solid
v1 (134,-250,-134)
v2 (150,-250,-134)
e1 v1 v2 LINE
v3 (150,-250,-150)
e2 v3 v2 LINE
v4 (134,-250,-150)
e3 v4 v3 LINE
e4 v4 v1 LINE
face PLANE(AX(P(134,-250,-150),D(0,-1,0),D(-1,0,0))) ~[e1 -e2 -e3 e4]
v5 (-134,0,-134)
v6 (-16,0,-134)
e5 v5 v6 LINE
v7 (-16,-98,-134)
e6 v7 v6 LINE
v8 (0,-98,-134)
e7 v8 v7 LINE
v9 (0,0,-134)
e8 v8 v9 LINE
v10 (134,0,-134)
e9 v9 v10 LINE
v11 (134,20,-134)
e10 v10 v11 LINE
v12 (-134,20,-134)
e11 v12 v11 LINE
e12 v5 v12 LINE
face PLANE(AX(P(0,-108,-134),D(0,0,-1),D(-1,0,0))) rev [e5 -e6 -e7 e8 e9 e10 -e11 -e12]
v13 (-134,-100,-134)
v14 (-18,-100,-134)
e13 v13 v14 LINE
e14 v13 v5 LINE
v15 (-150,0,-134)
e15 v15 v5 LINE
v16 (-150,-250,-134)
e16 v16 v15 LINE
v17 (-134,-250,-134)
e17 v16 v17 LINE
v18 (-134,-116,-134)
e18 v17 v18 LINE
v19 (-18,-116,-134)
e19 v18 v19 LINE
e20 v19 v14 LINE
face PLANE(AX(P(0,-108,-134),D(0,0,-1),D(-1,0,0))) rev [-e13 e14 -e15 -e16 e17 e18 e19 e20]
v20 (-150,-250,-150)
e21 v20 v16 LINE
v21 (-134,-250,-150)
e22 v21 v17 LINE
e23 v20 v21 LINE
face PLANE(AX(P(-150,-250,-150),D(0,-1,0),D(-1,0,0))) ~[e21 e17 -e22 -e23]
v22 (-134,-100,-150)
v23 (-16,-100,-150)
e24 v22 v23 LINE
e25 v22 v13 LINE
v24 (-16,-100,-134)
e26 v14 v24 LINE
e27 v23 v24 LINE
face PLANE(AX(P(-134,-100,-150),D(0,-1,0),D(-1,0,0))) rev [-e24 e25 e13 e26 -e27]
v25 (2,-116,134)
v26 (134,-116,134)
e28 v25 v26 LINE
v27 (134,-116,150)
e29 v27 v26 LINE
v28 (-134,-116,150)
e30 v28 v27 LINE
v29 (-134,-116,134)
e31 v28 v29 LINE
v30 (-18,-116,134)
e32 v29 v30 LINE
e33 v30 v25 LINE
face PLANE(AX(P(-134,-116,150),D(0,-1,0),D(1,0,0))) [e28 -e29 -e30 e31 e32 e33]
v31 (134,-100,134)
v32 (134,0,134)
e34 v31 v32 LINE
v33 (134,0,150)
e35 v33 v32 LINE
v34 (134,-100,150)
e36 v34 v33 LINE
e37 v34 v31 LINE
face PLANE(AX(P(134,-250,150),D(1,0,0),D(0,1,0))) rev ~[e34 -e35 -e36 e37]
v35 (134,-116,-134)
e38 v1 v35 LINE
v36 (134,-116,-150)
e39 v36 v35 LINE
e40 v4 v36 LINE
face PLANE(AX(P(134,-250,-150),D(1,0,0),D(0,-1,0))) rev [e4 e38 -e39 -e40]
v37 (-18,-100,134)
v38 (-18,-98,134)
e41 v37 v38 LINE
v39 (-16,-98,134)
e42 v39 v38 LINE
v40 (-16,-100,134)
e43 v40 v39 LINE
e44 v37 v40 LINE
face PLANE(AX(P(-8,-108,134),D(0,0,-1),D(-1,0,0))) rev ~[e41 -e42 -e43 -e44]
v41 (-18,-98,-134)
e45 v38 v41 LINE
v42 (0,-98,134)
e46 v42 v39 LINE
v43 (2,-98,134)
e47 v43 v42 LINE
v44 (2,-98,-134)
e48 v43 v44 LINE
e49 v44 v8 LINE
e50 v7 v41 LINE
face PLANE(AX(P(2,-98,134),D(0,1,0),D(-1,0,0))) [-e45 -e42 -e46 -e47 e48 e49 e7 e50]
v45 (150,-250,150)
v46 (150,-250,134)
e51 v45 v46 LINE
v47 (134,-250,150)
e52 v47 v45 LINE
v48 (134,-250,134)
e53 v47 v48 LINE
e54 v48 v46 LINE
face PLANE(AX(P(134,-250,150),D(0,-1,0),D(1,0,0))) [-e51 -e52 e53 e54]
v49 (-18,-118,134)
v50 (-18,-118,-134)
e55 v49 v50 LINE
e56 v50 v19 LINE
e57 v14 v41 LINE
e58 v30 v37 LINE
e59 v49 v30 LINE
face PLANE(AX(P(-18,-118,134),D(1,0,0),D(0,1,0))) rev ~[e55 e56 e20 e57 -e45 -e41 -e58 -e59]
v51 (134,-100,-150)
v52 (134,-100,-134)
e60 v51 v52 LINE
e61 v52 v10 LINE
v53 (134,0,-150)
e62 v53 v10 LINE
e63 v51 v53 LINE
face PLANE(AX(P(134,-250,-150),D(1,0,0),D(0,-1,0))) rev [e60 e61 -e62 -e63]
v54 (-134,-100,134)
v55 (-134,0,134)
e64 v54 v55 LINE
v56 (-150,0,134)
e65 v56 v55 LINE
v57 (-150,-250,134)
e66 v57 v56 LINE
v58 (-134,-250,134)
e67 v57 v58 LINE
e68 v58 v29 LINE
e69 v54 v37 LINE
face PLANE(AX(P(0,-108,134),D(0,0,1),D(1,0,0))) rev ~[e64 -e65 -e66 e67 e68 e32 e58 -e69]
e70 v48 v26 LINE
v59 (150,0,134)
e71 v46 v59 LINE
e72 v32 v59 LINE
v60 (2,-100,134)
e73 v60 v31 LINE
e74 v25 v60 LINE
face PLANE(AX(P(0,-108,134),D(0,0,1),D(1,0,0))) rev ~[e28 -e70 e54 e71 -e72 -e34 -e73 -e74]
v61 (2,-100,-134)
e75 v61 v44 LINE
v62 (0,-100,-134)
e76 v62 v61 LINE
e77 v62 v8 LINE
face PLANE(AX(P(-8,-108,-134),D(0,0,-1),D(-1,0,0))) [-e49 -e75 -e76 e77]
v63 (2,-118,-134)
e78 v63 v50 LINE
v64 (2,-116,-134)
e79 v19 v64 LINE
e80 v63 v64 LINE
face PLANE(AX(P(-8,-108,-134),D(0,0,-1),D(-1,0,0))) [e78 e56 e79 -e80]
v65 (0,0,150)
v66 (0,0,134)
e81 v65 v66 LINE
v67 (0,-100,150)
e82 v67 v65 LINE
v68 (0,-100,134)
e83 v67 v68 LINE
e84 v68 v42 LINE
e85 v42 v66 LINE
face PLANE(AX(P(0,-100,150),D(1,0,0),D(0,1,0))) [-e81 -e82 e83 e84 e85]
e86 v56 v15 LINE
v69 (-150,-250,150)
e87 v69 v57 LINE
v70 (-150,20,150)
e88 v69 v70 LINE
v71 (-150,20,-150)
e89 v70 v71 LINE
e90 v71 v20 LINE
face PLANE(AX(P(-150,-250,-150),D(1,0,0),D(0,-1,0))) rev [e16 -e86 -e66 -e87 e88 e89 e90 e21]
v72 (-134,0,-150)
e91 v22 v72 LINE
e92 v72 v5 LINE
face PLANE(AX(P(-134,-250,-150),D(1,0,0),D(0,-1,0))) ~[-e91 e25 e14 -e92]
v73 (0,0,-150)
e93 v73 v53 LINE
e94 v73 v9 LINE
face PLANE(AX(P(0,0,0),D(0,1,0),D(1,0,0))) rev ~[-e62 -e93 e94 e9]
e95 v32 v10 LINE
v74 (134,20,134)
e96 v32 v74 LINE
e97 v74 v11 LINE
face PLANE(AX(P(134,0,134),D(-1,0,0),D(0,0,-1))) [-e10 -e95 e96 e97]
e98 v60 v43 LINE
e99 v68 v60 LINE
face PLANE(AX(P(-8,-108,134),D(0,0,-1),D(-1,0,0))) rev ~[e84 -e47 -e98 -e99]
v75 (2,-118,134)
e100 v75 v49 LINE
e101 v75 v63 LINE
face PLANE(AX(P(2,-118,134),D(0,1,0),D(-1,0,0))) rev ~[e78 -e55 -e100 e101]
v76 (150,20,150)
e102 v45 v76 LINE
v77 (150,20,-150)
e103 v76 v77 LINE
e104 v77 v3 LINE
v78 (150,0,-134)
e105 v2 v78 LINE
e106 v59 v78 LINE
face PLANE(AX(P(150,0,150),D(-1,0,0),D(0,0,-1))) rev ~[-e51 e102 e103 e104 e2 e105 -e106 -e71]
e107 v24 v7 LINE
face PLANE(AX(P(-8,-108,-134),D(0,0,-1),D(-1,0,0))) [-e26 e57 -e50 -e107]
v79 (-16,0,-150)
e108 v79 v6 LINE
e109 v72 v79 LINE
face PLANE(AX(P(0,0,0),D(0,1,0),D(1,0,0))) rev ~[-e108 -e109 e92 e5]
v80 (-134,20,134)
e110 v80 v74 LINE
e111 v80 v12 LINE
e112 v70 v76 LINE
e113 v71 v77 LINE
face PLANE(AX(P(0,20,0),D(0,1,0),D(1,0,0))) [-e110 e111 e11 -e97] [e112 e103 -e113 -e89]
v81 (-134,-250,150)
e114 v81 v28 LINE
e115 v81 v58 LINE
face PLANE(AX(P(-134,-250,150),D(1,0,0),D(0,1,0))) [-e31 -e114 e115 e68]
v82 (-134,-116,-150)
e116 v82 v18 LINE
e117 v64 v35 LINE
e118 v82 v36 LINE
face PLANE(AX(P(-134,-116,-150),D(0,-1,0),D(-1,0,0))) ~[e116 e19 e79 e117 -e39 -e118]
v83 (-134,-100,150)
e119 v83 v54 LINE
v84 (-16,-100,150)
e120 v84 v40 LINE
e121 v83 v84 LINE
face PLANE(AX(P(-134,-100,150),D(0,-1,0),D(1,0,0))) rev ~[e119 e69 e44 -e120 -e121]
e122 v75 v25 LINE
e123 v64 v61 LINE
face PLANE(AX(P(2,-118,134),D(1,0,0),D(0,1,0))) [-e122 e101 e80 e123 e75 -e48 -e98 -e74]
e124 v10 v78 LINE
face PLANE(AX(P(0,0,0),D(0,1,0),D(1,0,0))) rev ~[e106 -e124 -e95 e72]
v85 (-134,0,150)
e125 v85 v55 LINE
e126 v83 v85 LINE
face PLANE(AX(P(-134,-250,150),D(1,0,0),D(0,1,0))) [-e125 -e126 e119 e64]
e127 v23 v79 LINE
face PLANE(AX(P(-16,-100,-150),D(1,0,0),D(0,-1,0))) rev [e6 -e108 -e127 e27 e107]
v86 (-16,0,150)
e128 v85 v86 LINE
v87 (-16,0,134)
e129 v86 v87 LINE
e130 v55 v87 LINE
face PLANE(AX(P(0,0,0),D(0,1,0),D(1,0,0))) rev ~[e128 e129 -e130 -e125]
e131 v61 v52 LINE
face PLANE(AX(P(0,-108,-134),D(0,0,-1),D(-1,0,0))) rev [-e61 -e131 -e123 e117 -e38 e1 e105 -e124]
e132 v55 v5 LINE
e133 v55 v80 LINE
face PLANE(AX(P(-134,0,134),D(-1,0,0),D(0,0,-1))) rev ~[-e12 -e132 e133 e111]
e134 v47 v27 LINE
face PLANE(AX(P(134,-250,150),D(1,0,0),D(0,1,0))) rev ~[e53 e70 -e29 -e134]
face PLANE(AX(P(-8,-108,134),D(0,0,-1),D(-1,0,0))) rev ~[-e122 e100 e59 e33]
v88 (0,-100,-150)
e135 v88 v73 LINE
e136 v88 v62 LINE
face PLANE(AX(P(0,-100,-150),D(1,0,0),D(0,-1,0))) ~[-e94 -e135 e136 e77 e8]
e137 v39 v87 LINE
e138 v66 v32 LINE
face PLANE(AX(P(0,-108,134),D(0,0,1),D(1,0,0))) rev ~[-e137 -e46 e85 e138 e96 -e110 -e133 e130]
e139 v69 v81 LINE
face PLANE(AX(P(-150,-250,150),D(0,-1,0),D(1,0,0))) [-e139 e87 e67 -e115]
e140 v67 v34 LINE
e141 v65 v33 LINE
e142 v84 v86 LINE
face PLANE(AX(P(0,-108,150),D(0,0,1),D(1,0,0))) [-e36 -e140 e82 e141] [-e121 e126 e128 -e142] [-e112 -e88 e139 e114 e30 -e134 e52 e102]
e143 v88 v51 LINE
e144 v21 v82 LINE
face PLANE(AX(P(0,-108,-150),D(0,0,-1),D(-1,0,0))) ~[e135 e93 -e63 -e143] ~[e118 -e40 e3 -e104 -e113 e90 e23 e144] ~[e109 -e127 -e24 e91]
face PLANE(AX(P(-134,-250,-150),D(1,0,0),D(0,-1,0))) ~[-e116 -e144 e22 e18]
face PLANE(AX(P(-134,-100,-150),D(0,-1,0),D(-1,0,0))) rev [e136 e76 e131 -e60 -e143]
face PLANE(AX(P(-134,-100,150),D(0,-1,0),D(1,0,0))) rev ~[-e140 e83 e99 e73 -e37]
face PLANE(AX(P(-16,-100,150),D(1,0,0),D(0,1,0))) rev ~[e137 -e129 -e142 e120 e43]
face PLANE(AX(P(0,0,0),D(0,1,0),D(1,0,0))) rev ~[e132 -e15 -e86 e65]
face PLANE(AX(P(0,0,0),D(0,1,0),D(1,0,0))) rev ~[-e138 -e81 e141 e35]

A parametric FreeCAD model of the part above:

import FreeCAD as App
import Part
import Sketcher
Q = App.Units.Quantity


def add_polygon(sketch, points):
    """Adds a closed chain of lines whose ends are joined by coincident constraints."""
    first, n = sketch.GeometryCount, len(points)
    for a, b in zip(points, points[1:] + points[:1]):
        sketch.addGeometry(Part.LineSegment(App.Vector(*a, 0), App.Vector(*b, 0)), False)
    for i in range(n):
        sketch.addConstraint(Sketcher.Constraint("Coincident", first + i, 2, first + (i + 1) % n, 1))

doc = App.newDocument("Part")
body = doc.addObject("PartDesign::Body", "Body")

sketch1 = doc.addObject("Sketcher::SketchObject", "Sketch")
body.addObject(sketch1)
sketch1.AttachmentSupport = (doc.XZ_Plane, [""])
sketch1.MapMode = "FlatFace"
add_polygon(sketch1, [(-150, -150), (-150, 150), (150, 150), (150, -150)])
add_polygon(sketch1, [(134, 134), (-134, 134), (-134, -134), (134, -134)])
sketch1.addConstraint([
    Sketcher.Constraint("Vertical", 0),
    Sketcher.Constraint("Horizontal", 1),
    Sketcher.Constraint("Vertical", 2),
    Sketcher.Constraint("Horizontal", 3),
    Sketcher.Constraint("Horizontal", 4),
    Sketcher.Constraint("Vertical", 5),
    Sketcher.Constraint("Horizontal", 6),
    Sketcher.Constraint("Vertical", 7),
    Sketcher.Constraint("Symmetric", 0, 2, 2, 2, -1, 1),
    Sketcher.Constraint("Symmetric", 4, 2, 6, 2, -1, 1),
    Sketcher.Constraint("Equal", 3, 0),
    Sketcher.Constraint("Equal", 6, 5),
    Sketcher.Constraint("DistanceX", 1, 1, 1, 2, Q("300 mm")),
    Sketcher.Constraint("DistanceX", 4, 2, 4, 1, Q("268 mm")),
])
pad1 = doc.addObject("PartDesign::Pad", "Pad")
body.addObject(pad1)
pad1.Profile = sketch1
pad1.Length = 20
pad1.Reversed = True

sketch2 = doc.addObject("Sketcher::SketchObject", "Sketch001")
body.addObject(sketch2)
sketch2.AttachmentSupport = (doc.XY_Plane, [""])
sketch2.MapMode = "FlatFace"
sketch2.AttachmentOffset = App.Placement(App.Vector(0, 0, 150), App.Rotation())
add_polygon(sketch2, [(-16, 0), (-16, -100), (0, -100), (0, 0)])
sketch2.addConstraint([
    Sketcher.Constraint("Vertical", 0),
    Sketcher.Constraint("Horizontal", 1),
    Sketcher.Constraint("Vertical", 2),
    Sketcher.Constraint("Horizontal", 3),
    Sketcher.Constraint("Coincident", 2, 2, -1, 1),
    Sketcher.Constraint("DistanceX", 1, 1, 1, 2, Q("16 mm")),
    Sketcher.Constraint("DistanceY", 0, 2, 0, 1, Q("100 mm")),
])
pad2 = doc.addObject("PartDesign::Pad", "Pad001")
body.addObject(pad2)
pad2.Profile = sketch2
pad2.Length = 16
pad2.Reversed = True

sketch3 = doc.addObject("Sketcher::SketchObject", "Sketch002")
body.addObject(sketch3)
sketch3.AttachmentSupport = (doc.XY_Plane, [""])
sketch3.MapMode = "FlatFace"
sketch3.AttachmentOffset = App.Placement(App.Vector(0, 0, 150), App.Rotation())
add_polygon(sketch3, [(-150, 0), (-150, -250), (-134, -250), (-134, 0)])
add_polygon(sketch3, [(134, 0), (134, -250), (150, -250), (150, 0)])
sketch3.addConstraint([
    Sketcher.Constraint("Vertical", 0),
    Sketcher.Constraint("Horizontal", 1),
    Sketcher.Constraint("Vertical", 2),
    Sketcher.Constraint("Horizontal", 3),
    Sketcher.Constraint("Vertical", 4),
    Sketcher.Constraint("Horizontal", 5),
    Sketcher.Constraint("Vertical", 6),
    Sketcher.Constraint("Horizontal", 7),
    Sketcher.Constraint("Symmetric", 3, 2, 6, 2, -1, 1),
    Sketcher.Constraint("Symmetric", 1, 2, 4, 2, -2),
    Sketcher.Constraint("PointOnObject", 2, 2, -1),
    Sketcher.Constraint("DistanceX", 1, 1, 1, 2, Q("16 mm")),
    Sketcher.Constraint("DistanceY", 0, 2, 0, 1, Q("250 mm")),
    Sketcher.Constraint("DistanceX", 0, 2, -1, 1, Q("150 mm")),
])
pad3 = doc.addObject("PartDesign::Pad", "Pad002")
body.addObject(pad3)
pad3.Profile = sketch3
pad3.Length = 16
pad3.Reversed = True

sketch4 = doc.addObject("Sketcher::SketchObject", "Sketch003")
body.addObject(sketch4)
sketch4.AttachmentSupport = (doc.XY_Plane, [""])
sketch4.MapMode = "FlatFace"
sketch4.AttachmentOffset = App.Placement(App.Vector(0, 0, 150), App.Rotation())
add_polygon(sketch4, [(-134, -100), (-134, -116), (134, -116), (134, -100)])
sketch4.addConstraint([
    Sketcher.Constraint("Vertical", 0),
    Sketcher.Constraint("Horizontal", 1),
    Sketcher.Constraint("Vertical", 2),
    Sketcher.Constraint("Horizontal", 3),
    Sketcher.Constraint("DistanceX", 1, 1, 1, 2, Q("268 mm")),
    Sketcher.Constraint("DistanceY", 0, 2, 0, 1, Q("16 mm")),
    Sketcher.Constraint("DistanceX", 0, 2, -1, 1, Q("134 mm")),
    Sketcher.Constraint("DistanceY", 0, 2, -1, 1, Q("116 mm")),
])
pad4 = doc.addObject("PartDesign::Pad", "Pad003")
body.addObject(pad4)
pad4.Profile = sketch4
pad4.Length = 16
pad4.Reversed = True
doc.recompute()

mirrored = doc.addObject("PartDesign::Mirrored", "Mirrored")
body.addObject(mirrored)
mirrored.Originals = [pad2, pad3, pad4]
mirrored.MirrorPlane = (doc.XY_Plane, [""])
body.Tip = mirrored

sketch5 = doc.addObject("Sketcher::SketchObject", "Sketch004")
body.addObject(sketch5)
sketch5.AttachmentSupport = (doc.XY_Plane, [""])
sketch5.MapMode = "FlatFace"
sketch5.AttachmentOffset = App.Placement(App.Vector(0, 0, 134), App.Rotation())
add_polygon(sketch5, [(2, -98), (2, -118), (-18, -118), (-18, -98)])
sketch5.addConstraint([
    Sketcher.Constraint("Vertical", 0),
    Sketcher.Constraint("Horizontal", 1),
    Sketcher.Constraint("Vertical", 2),
    Sketcher.Constraint("Horizontal", 3),
    Sketcher.Constraint("Equal", 3, 0),
    Sketcher.Constraint("DistanceX", 1, 2, 1, 1, Q("20 mm")),
    Sketcher.Constraint("DistanceX", -1, 1, 0, 2, Q("2 mm")),
    Sketcher.Constraint("DistanceY", 0, 2, -1, 1, Q("118 mm")),
])
pad5 = doc.addObject("PartDesign::Pad", "Pad004")
body.addObject(pad5)
pad5.Profile = sketch5
pad5.Length = 268
pad5.Reversed = True

doc.recompute()
